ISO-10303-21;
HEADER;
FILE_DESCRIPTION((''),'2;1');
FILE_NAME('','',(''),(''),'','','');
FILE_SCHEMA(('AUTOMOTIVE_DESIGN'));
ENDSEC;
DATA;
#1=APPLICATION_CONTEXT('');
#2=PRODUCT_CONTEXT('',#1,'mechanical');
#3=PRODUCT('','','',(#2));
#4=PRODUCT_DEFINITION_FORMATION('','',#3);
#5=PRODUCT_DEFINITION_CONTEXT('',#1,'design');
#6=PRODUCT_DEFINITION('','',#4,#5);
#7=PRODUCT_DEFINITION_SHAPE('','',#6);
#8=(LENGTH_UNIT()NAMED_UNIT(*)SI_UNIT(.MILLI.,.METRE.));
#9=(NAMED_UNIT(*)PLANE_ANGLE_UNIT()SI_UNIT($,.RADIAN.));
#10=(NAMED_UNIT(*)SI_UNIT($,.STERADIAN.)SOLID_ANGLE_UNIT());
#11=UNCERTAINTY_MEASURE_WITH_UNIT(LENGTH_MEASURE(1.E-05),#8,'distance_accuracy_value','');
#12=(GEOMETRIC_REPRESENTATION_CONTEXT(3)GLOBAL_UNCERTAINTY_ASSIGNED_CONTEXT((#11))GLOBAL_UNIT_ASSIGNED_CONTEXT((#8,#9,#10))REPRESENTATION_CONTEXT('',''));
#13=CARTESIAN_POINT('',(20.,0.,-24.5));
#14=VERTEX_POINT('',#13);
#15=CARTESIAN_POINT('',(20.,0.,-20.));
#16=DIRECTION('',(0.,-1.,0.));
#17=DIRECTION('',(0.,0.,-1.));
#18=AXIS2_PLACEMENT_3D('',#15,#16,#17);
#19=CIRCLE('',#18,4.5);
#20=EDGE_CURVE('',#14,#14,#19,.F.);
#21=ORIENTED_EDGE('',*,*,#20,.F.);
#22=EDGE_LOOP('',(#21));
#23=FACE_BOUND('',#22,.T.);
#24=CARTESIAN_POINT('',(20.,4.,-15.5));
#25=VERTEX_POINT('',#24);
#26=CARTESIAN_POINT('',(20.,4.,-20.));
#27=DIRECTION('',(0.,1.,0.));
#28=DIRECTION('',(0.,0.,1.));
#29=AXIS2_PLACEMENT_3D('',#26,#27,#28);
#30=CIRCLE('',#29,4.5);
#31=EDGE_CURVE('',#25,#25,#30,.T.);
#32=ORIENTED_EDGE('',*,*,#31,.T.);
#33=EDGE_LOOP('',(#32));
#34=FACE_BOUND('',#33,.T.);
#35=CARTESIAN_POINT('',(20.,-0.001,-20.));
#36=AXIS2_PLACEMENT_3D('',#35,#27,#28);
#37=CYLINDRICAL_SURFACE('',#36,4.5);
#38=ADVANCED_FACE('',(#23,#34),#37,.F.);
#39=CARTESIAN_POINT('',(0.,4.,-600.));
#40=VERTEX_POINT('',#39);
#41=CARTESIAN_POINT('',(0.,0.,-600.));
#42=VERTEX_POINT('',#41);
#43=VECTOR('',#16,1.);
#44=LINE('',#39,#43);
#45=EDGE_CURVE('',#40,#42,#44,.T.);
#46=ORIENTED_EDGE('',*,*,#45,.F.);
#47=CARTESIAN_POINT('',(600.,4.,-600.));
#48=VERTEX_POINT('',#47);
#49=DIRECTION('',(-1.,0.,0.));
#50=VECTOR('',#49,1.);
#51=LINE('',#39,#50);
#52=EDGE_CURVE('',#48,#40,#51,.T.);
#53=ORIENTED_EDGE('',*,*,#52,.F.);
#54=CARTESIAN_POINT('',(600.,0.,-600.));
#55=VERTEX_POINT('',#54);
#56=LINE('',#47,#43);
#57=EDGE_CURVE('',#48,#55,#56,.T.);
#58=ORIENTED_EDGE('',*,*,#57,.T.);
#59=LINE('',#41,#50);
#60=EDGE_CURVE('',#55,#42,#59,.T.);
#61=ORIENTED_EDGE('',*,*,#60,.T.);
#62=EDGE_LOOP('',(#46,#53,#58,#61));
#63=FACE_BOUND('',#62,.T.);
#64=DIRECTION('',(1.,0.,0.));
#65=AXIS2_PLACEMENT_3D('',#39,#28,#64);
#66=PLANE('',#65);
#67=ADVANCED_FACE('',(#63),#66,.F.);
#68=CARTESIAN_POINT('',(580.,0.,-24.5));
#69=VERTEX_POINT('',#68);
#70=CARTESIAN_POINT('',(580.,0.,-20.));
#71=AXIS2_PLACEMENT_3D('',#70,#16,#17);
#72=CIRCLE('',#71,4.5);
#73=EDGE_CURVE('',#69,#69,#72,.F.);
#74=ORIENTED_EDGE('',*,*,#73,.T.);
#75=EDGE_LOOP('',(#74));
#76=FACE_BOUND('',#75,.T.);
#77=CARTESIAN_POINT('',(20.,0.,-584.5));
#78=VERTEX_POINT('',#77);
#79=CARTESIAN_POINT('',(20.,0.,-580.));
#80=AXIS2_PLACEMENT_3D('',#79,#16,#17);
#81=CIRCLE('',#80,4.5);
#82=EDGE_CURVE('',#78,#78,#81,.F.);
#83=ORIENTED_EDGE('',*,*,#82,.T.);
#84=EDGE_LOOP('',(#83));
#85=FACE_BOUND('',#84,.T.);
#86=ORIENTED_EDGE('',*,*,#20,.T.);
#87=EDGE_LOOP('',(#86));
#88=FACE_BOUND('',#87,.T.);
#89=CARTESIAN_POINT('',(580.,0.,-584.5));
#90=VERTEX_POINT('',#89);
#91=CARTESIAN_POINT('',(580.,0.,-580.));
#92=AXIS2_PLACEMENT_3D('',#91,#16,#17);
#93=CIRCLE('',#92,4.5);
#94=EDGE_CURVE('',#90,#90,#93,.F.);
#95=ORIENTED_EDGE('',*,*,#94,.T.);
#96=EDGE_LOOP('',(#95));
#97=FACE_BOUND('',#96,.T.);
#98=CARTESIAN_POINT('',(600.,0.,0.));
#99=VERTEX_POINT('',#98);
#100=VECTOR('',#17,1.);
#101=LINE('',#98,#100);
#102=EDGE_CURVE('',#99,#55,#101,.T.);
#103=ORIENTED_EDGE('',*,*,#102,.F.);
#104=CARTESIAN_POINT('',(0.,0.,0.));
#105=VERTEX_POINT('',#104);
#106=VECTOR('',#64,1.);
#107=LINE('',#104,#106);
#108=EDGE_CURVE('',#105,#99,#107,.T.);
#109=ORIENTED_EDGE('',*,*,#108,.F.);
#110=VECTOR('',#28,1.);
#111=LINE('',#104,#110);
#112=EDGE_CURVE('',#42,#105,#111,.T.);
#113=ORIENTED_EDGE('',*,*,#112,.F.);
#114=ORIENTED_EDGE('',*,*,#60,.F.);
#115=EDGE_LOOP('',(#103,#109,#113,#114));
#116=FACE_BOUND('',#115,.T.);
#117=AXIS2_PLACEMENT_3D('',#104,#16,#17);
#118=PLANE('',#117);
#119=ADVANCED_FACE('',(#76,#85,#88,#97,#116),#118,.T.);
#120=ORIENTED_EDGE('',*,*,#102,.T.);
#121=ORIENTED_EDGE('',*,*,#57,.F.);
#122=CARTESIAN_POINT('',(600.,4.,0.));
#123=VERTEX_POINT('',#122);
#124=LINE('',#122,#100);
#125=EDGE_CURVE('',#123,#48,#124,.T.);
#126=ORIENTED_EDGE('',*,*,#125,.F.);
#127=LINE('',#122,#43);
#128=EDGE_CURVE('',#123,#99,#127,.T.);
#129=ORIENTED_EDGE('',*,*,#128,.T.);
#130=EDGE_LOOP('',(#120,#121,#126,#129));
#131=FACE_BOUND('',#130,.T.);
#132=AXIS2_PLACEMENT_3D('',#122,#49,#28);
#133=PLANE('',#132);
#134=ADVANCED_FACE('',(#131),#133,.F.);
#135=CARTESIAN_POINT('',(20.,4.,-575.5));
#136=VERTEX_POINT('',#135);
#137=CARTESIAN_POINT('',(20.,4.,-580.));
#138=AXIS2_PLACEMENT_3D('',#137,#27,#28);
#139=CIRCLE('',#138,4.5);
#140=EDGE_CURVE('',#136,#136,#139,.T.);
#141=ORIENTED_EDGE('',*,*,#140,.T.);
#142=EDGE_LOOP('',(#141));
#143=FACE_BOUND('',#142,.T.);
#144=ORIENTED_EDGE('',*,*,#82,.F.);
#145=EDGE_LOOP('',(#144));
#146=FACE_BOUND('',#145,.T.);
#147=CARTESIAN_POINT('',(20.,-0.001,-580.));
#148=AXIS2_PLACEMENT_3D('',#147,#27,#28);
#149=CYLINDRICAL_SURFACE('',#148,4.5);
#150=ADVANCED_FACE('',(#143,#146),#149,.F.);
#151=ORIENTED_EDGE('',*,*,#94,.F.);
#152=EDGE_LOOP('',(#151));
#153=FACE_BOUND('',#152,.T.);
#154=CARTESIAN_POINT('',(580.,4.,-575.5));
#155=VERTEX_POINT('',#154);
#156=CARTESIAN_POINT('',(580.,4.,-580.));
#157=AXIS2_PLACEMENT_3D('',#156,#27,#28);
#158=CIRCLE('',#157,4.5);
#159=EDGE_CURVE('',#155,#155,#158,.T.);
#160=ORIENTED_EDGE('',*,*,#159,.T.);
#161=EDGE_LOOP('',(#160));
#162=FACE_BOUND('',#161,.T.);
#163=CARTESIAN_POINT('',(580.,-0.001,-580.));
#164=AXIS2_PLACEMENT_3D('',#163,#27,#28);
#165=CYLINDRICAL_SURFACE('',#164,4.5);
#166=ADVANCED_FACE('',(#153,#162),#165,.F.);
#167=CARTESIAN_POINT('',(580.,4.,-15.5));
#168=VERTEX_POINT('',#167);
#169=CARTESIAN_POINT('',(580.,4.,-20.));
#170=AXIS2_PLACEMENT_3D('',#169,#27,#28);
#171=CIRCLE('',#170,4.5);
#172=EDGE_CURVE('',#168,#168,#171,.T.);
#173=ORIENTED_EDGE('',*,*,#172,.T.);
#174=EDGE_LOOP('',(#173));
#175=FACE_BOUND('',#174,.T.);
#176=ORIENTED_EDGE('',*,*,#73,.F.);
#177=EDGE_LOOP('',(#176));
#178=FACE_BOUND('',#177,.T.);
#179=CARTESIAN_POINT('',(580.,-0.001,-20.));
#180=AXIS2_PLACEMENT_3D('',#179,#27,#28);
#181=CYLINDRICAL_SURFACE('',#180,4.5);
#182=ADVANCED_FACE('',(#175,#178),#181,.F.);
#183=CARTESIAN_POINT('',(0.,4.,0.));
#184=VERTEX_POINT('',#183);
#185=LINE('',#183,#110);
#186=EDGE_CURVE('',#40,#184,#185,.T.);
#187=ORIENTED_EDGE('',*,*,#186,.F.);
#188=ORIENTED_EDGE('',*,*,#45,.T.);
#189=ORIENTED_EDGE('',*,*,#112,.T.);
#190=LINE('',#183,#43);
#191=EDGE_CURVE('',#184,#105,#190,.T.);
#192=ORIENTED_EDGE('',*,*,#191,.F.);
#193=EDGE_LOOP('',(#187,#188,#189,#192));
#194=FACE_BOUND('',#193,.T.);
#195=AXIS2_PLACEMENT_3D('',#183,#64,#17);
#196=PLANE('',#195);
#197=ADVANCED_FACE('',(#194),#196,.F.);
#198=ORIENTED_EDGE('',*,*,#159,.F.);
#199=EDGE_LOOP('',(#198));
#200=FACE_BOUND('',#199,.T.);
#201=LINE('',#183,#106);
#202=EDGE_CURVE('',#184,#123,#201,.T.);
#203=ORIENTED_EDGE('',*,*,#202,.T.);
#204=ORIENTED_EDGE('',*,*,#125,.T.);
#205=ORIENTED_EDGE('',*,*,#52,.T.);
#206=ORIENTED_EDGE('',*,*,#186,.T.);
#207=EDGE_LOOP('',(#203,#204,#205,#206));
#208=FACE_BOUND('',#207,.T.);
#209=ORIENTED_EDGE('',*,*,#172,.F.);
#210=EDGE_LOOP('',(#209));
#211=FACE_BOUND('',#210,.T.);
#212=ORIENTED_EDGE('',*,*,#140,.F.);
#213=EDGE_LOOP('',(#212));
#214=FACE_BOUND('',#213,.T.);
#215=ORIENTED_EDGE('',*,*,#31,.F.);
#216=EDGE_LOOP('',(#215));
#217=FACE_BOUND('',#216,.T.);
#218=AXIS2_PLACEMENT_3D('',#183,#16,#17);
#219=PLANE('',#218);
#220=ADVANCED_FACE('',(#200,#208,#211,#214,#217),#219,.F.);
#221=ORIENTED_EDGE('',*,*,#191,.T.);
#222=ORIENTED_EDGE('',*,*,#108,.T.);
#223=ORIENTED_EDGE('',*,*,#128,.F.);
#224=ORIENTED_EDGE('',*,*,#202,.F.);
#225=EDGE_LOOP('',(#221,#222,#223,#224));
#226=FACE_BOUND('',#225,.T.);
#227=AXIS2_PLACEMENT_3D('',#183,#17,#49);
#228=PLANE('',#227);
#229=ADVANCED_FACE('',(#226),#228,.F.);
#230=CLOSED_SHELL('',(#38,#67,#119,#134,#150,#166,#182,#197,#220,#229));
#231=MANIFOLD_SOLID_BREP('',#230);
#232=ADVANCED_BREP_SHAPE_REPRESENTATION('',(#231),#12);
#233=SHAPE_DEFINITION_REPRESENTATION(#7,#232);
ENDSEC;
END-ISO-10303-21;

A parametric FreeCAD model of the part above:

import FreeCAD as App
import Part
import Sketcher
from FreeCAD import Vector
Q = App.Units.Quantity


def add_polygon(sketch, points):
    """Adds a closed chain of lines whose ends are joined by coincident constraints."""
    first, n = sketch.GeometryCount, len(points)
    for a, b in zip(points, points[1:] + points[:1]):
        sketch.addGeometry(Part.LineSegment(App.Vector(*a, 0), App.Vector(*b, 0)), False)
    for i in range(n):
        sketch.addConstraint(Sketcher.Constraint("Coincident", first + i, 2, first + (i + 1) % n, 1))

doc = App.newDocument("Part")
body = doc.addObject("PartDesign::Body", "Body")

sketch1 = body.newObject("Sketcher::SketchObject", "Sketch")
sketch1.AttachmentSupport = (doc.getObject("XZ_Plane"), [""])
sketch1.MapMode = "FlatFace"
add_polygon(sketch1, [(0, -600), (0, 0), (600, 0), (600, -600)])
sketch1.addConstraint([
    Sketcher.Constraint("Vertical", 0),
    Sketcher.Constraint("Horizontal", 1),
    Sketcher.Constraint("Vertical", 2),
    Sketcher.Constraint("Horizontal", 3),
    Sketcher.Constraint("Coincident", 0, 2, -1, 1),
    Sketcher.Constraint("Equal", 3, 0),
    Sketcher.Constraint("DistanceX", 1, 1, 1, 2, Q("600 mm")),
])
pad1 = body.newObject("PartDesign::Pad", "Pad")
pad1.Profile = sketch1
pad1.Length = 4
pad1.Reversed = True

sketch2 = body.newObject("Sketcher::SketchObject", "Sketch001")
sketch2.AttachmentSupport = (doc.getObject("XZ_Plane"), [""])
sketch2.MapMode = "FlatFace"
sketch2.AttachmentOffset = App.Placement(Vector(0, 0, -4), App.Rotation())
sketch2.addGeometry(Part.Circle(Vector(20, -580, 0), Vector(0, 0, 1), 4.5), False)
sketch2.addConstraint([
    Sketcher.Constraint("Diameter", 0, Q("9 mm")),
    Sketcher.Constraint("DistanceX", -1, 1, 0, 3, Q("20 mm")),
    Sketcher.Constraint("DistanceY", 0, 3, -1, 1, Q("580 mm")),
])
pocket1 = body.newObject("PartDesign::Pocket", "Pocket")
pocket1.Profile = sketch2
pocket1.Type = "UpToFirst"
pocket1.Reversed = True

sketch3 = body.newObject("Sketcher::SketchObject", "Sketch002")
sketch3.AttachmentSupport = (doc.getObject("XZ_Plane"), [""])
sketch3.MapMode = "FlatFace"
sketch3.AttachmentOffset = App.Placement(Vector(0, 0, -4), App.Rotation())
sketch3.addGeometry(Part.Circle(Vector(580, -580, 0), Vector(0, 0, 1), 4.5), False)
sketch3.addConstraint([
    Sketcher.Constraint("Diameter", 0, Q("9 mm")),
    Sketcher.Constraint("DistanceX", -1, 1, 0, 3, Q("580 mm")),
    Sketcher.Constraint("DistanceY", 0, 3, -1, 1, Q("580 mm")),
])
pocket2 = body.newObject("PartDesign::Pocket", "Pocket001")
pocket2.Profile = sketch3
pocket2.Type = "UpToFirst"
pocket2.Reversed = True

sketch4 = body.newObject("Sketcher::SketchObject", "Sketch003")
sketch4.AttachmentSupport = (doc.getObject("XZ_Plane"), [""])
sketch4.MapMode = "FlatFace"
sketch4.AttachmentOffset = App.Placement(Vector(0, 0, -4), App.Rotation())
sketch4.addGeometry(Part.Circle(Vector(580, -20, 0), Vector(0, 0, 1), 4.5), False)
sketch4.addConstraint([
    Sketcher.Constraint("Diameter", 0, Q("9 mm")),
    Sketcher.Constraint("DistanceX", -1, 1, 0, 3, Q("580 mm")),
    Sketcher.Constraint("DistanceY", 0, 3, -1, 1, Q("20 mm")),
])
pocket3 = body.newObject("PartDesign::Pocket", "Pocket002")
pocket3.Profile = sketch4
pocket3.Type = "UpToFirst"
pocket3.Reversed = True

sketch5 = body.newObject("Sketcher::SketchObject", "Sketch004")
sketch5.AttachmentSupport = (doc.getObject("XZ_Plane"), [""])
sketch5.MapMode = "FlatFace"
sketch5.AttachmentOffset = App.Placement(Vector(0, 0, -4), App.Rotation())
sketch5.addGeometry(Part.Circle(Vector(20, -20, 0), Vector(0, 0, 1), 4.5), False)
sketch5.addConstraint([
    Sketcher.Constraint("Diameter", 0, Q("9 mm")),
    Sketcher.Constraint("DistanceX", -1, 1, 0, 3, Q("20 mm")),
    Sketcher.Constraint("DistanceY", 0, 3, -1, 1, Q("20 mm")),
])
pocket4 = body.newObject("PartDesign::Pocket", "Pocket003")
pocket4.Profile = sketch5
pocket4.Type = "UpToFirst"
pocket4.Reversed = True

doc.recompute()
